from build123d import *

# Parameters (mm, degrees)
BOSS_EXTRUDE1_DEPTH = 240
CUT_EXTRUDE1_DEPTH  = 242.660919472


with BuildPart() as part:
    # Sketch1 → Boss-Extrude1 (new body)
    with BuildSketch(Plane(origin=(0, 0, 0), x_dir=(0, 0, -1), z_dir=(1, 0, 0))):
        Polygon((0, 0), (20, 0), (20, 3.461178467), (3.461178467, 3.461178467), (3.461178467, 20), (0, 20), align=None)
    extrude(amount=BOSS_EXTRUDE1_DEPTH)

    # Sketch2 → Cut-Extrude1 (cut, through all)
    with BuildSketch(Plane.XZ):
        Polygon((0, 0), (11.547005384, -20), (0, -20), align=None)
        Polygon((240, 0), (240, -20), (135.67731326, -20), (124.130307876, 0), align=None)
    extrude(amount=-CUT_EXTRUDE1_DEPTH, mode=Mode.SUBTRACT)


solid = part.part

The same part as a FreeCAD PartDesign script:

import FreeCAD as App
import Part
import Sketcher
from FreeCAD import Vector
Q = App.Units.Quantity


def add_polygon(sketch, points):
    """Adds a closed chain of lines whose ends are joined by coincident constraints."""
    first, n = sketch.GeometryCount, len(points)
    for a, b in zip(points, points[1:] + points[:1]):
        sketch.addGeometry(Part.LineSegment(App.Vector(*a, 0), App.Vector(*b, 0)), False)
    for i in range(n):
        sketch.addConstraint(Sketcher.Constraint("Coincident", first + i, 2, first + (i + 1) % n, 1))

doc = App.newDocument("Part")
body = doc.addObject("PartDesign::Body", "Body")

# Sketch on YZ plane
sketch1 = body.newObject("Sketcher::SketchObject", "Sketch")
sketch1.AttachmentSupport = (doc.getObject("YZ_Plane"), [""])
sketch1.MapMode = "FlatFace"
add_polygon(sketch1, [(0, 0), (0, -20), (3.5, -20), (3.5, -3.5), (20, -3.5), (20, 0)])  # lines 0-5
sketch1.addConstraint([
    Sketcher.Constraint("Vertical", 0),
    Sketcher.Constraint("Horizontal", 1),
    Sketcher.Constraint("Vertical", 2),
    Sketcher.Constraint("Horizontal", 3),
    Sketcher.Constraint("Vertical", 4),
    Sketcher.Constraint("Horizontal", 5),
    Sketcher.Constraint("Coincident", 5, 2, -1, 1),
    Sketcher.Constraint("Equal", 5, 0),
    Sketcher.Constraint("Equal", 3, 2),
    Sketcher.Constraint("DistanceX", 5, 2, 5, 1, Q("20 mm")),
    Sketcher.Constraint("DistanceX", 1, 1, 1, 2, Q("3.461178 mm")),
])
pad1 = body.newObject("PartDesign::Pad", "Pad")
pad1.Profile = sketch1
pad1.Length = 240

# Sketch on XZ plane
sketch2 = body.newObject("Sketcher::SketchObject", "Sketch001")
sketch2.AttachmentSupport = (doc.getObject("XZ_Plane"), [""])
sketch2.MapMode = "FlatFace"
add_polygon(sketch2, [(12, -20), (0, 0), (0, -20)])  # lines 0-2
add_polygon(sketch2, [(240, -20), (240, 0), (124, 0), (136, -20)])  # lines 3-6
sketch2.addConstraint([
    Sketcher.Constraint("Vertical", 1),
    Sketcher.Constraint("Horizontal", 2),
    Sketcher.Constraint("Vertical", 3),
    Sketcher.Constraint("Horizontal", 4),
    Sketcher.Constraint("Horizontal", 6),
    Sketcher.Constraint("Coincident", 0, 2, -1, 1),
    Sketcher.Constraint("PointOnObject", 3, 2, -1),
    Sketcher.Constraint("Parallel", 0, 5),
    Sketcher.Constraint("Horizontal", 2, 2, 5, 2),
    Sketcher.Constraint("DistanceY", 1, 2, 1, 1, Q("20 mm")),
    Sketcher.Constraint("Angle", 0, Q("120 deg")),
    Sketcher.Constraint("DistanceX", -1, 1, 3, 2, Q("240 mm")),
    Sketcher.Constraint("DistanceX", 4, 2, 4, 1, Q("115.869692 mm")),
])
pocket1 = body.newObject("PartDesign::Pocket", "Pocket")
pocket1.Profile = sketch2
pocket1.Type = "ThroughAll"

doc.recompute()
